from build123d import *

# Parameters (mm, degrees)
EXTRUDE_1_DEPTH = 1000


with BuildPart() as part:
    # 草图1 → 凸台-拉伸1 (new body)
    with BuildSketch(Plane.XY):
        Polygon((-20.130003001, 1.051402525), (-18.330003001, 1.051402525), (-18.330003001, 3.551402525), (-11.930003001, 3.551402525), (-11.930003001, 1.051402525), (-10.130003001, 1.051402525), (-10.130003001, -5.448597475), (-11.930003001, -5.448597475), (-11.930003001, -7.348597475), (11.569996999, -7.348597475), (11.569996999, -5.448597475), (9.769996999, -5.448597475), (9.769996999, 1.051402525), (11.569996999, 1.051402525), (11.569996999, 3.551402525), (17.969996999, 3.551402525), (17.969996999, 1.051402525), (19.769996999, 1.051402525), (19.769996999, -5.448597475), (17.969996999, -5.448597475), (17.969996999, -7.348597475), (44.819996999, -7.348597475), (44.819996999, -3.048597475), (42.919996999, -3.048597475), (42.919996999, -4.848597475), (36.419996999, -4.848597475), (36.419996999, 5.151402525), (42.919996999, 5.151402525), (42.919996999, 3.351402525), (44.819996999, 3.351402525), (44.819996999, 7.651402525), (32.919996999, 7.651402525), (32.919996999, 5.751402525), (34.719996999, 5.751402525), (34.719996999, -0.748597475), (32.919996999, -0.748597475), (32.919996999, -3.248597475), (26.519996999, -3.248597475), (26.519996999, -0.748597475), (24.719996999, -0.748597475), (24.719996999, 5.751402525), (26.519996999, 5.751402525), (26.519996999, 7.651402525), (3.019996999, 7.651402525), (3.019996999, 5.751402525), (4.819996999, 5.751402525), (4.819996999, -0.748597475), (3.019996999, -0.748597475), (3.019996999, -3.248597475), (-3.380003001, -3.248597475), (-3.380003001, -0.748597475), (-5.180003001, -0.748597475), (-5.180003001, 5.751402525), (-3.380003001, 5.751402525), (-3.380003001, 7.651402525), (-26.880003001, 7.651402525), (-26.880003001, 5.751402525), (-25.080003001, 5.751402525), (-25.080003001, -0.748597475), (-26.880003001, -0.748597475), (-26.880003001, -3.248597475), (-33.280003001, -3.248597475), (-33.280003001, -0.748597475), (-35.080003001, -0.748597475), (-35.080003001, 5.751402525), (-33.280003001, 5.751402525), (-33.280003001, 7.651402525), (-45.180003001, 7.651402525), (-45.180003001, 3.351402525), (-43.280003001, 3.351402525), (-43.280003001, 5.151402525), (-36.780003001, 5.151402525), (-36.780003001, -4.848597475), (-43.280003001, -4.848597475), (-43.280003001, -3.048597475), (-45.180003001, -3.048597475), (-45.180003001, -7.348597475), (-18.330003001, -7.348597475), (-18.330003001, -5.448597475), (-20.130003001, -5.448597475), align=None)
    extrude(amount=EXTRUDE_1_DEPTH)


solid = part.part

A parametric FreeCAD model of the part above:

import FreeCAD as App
import Part
import Sketcher

V = App.Vector
Q = App.Units.Quantity


def add_polygon(sketch, points):
    """Adds a closed chain of lines whose ends are joined by coincident constraints."""
    first, n = sketch.GeometryCount, len(points)
    for a, b in zip(points, points[1:] + points[:1]):
        sketch.addGeometry(Part.LineSegment(App.Vector(*a, 0), App.Vector(*b, 0)), False)
    for i in range(n):
        sketch.addConstraint(Sketcher.Constraint("Coincident", first + i, 2, first + (i + 1) % n, 1))

doc = App.newDocument("Part")
params = doc.addObject("Spreadsheet::Sheet", "Params")
for row, (alias, value) in enumerate([
    ("sketch1_height", "10 mm"),
    ("sketch1_width", "1.8 mm"),
    ("sketch1_width2", "6.4 mm"),
    ("sketch1_width3", "23.5 mm"),
    ("sketch1_width4", "1.9 mm"),
    ("pad1_length", "1000 mm"),
], start=1):
    params.set(f"A{row}", alias)
    params.set(f"B{row}", "=" + value)
    params.setAlias(f"B{row}", alias)

body = doc.addObject("PartDesign::Body", "Body")

# Sketch on XY plane
sketch1 = body.newObject("Sketcher::SketchObject", "Sketch")
sketch1.AttachmentSupport = (doc.getObject("XY_Plane"), [""])
sketch1.MapMode = "FlatFace"
add_polygon(sketch1, [(-20.1, 1.1), (-18.3, 1.1), (-18.3, 3.6), (-11.9, 3.6), (-11.9, 1.1), (-10.1, 1.1), (-10.1, -5.4), (-11.9, -5.4), (-11.9, -7.3), (11.6, -7.3), (11.6, -5.4), (9.8, -5.4), (9.8, 1.1), (11.6, 1.1), (11.6, 3.6), (18, 3.6), (18, 1.1), (19.8, 1.1), (19.8, -5.4), (18, -5.4), (18, -7.3), (44.8, -7.3), (44.8, -3), (42.9, -3), (42.9, -4.8), (36.4, -4.8), (36.4, 5.2), (42.9, 5.2), (42.9, 3.4), (44.8, 3.4), (44.8, 7.7), (32.9, 7.7), (32.9, 5.8), (34.7, 5.8), (34.7, -0.7), (32.9, -0.7), (32.9, -3.2), (26.5, -3.2), (26.5, -0.7), (24.7, -0.7), (24.7, 5.8), (26.5, 5.8), (26.5, 7.7), (3, 7.7), (3, 5.8), (4.8, 5.8), (4.8, -0.7), (3, -0.7), (3, -3.2), (-3.4, -3.2), (-3.4, -0.7), (-5.2, -0.7), (-5.2, 5.8), (-3.4, 5.8), (-3.4, 7.7), (-26.9, 7.7), (-26.9, 5.8), (-25.1, 5.8), (-25.1, -0.7), (-26.9, -0.7), (-26.9, -3.2), (-33.3, -3.2), (-33.3, -0.7), (-35.1, -0.7), (-35.1, 5.8), (-33.3, 5.8), (-33.3, 7.7), (-45.2, 7.7), (-45.2, 3.4), (-43.3, 3.4), (-43.3, 5.2), (-36.8, 5.2), (-36.8, -4.8), (-43.3, -4.8), (-43.3, -3), (-45.2, -3), (-45.2, -7.3), (-18.3, -7.3), (-18.3, -5.4), (-20.1, -5.4)])  # lines 0-79
sketch1.addConstraint([
    Sketcher.Constraint("Horizontal", 0),
    Sketcher.Constraint("Vertical", 1),
    Sketcher.Constraint("Horizontal", 2),
    Sketcher.Constraint("Vertical", 3),
    Sketcher.Constraint("Horizontal", 4),
    Sketcher.Constraint("Vertical", 5),
    Sketcher.Constraint("Horizontal", 6),
    Sketcher.Constraint("Vertical", 7),
    Sketcher.Constraint("Horizontal", 8),
    Sketcher.Constraint("Vertical", 9),
    Sketcher.Constraint("Horizontal", 10),
    Sketcher.Constraint("Vertical", 11),
    Sketcher.Constraint("Horizontal", 12),
    Sketcher.Constraint("Vertical", 13),
    Sketcher.Constraint("Horizontal", 14),
    Sketcher.Constraint("Vertical", 15),
    Sketcher.Constraint("Horizontal", 16),
    Sketcher.Constraint("Vertical", 17),
    Sketcher.Constraint("Horizontal", 18),
    Sketcher.Constraint("Vertical", 19),
    Sketcher.Constraint("Horizontal", 20),
    Sketcher.Constraint("Vertical", 21),
    Sketcher.Constraint("Horizontal", 22),
    Sketcher.Constraint("Vertical", 23),
    Sketcher.Constraint("Horizontal", 24),
    Sketcher.Constraint("Vertical", 25),
    Sketcher.Constraint("Horizontal", 26),
    Sketcher.Constraint("Vertical", 27),
    Sketcher.Constraint("Horizontal", 28),
    Sketcher.Constraint("Vertical", 29),
    Sketcher.Constraint("Horizontal", 30),
    Sketcher.Constraint("Vertical", 31),
    Sketcher.Constraint("Horizontal", 32),
    Sketcher.Constraint("Vertical", 33),
    Sketcher.Constraint("Horizontal", 34),
    Sketcher.Constraint("Vertical", 35),
    Sketcher.Constraint("Horizontal", 36),
    Sketcher.Constraint("Vertical", 37),
    Sketcher.Constraint("Horizontal", 38),
    Sketcher.Constraint("Vertical", 39),
    Sketcher.Constraint("Horizontal", 40),
    Sketcher.Constraint("Vertical", 41),
    Sketcher.Constraint("Horizontal", 42),
    Sketcher.Constraint("Vertical", 43),
    Sketcher.Constraint("Horizontal", 44),
    Sketcher.Constraint("Vertical", 45),
    Sketcher.Constraint("Horizontal", 46),
    Sketcher.Constraint("Vertical", 47),
    Sketcher.Constraint("Horizontal", 48),
    Sketcher.Constraint("Vertical", 49),
    Sketcher.Constraint("Horizontal", 50),
    Sketcher.Constraint("Vertical", 51),
    Sketcher.Constraint("Horizontal", 52),
    Sketcher.Constraint("Vertical", 53),
    Sketcher.Constraint("Horizontal", 54),
    Sketcher.Constraint("Vertical", 55),
    Sketcher.Constraint("Horizontal", 56),
    Sketcher.Constraint("Vertical", 57),
    Sketcher.Constraint("Horizontal", 58),
    Sketcher.Constraint("Vertical", 59),
    Sketcher.Constraint("Horizontal", 60),
    Sketcher.Constraint("Vertical", 61),
    Sketcher.Constraint("Horizontal", 62),
    Sketcher.Constraint("Vertical", 63),
    Sketcher.Constraint("Horizontal", 64),
    Sketcher.Constraint("Vertical", 65),
    Sketcher.Constraint("Horizontal", 66),
    Sketcher.Constraint("Vertical", 67),
    Sketcher.Constraint("Horizontal", 68),
    Sketcher.Constraint("Vertical", 69),
    Sketcher.Constraint("Horizontal", 70),
    Sketcher.Constraint("Vertical", 71),
    Sketcher.Constraint("Horizontal", 72),
    Sketcher.Constraint("Vertical", 73),
    Sketcher.Constraint("Horizontal", 74),
    Sketcher.Constraint("Vertical", 75),
    Sketcher.Constraint("Horizontal", 76),
    Sketcher.Constraint("Vertical", 77),
    Sketcher.Constraint("Horizontal", 78),
    Sketcher.Constraint("Vertical", 79),
    Sketcher.Constraint("Horizontal", 0, 2, 3, 2),
    Sketcher.Constraint("Horizontal", 6, 2, 9, 2),
    Sketcher.Constraint("Horizontal", 4, 2, 11, 2),
    Sketcher.Constraint("Horizontal", 2, 2, 13, 2),
    Sketcher.Constraint("Horizontal", 12, 2, 15, 2),
    Sketcher.Constraint("Horizontal", 10, 2, 17, 2),
    Sketcher.Constraint("Horizontal", 8, 2, 19, 2),
    Sketcher.Constraint("Horizontal", 34, 2, 37, 2),
    Sketcher.Constraint("Horizontal", 32, 2, 39, 2),
    Sketcher.Constraint("Horizontal", 30, 2, 41, 2),
    Sketcher.Constraint("Horizontal", 40, 2, 43, 2),
    Sketcher.Constraint("Horizontal", 38, 2, 45, 2),
    Sketcher.Constraint("Horizontal", 36, 2, 47, 2),
    Sketcher.Constraint("Horizontal", 46, 2, 49, 2),
    Sketcher.Constraint("Horizontal", 44, 2, 51, 2),
    Sketcher.Constraint("Horizontal", 42, 2, 53, 2),
    Sketcher.Constraint("Horizontal", 52, 2, 55, 2),
    Sketcher.Constraint("Horizontal", 50, 2, 57, 2),
    Sketcher.Constraint("Horizontal", 48, 2, 59, 2),
    Sketcher.Constraint("Horizontal", 58, 2, 61, 2),
    Sketcher.Constraint("Horizontal", 56, 2, 63, 2),
    Sketcher.Constraint("Horizontal", 54, 2, 65, 2),
    Sketcher.Constraint("Horizontal", 28, 2, 67, 2),
    Sketcher.Constraint("Horizontal", 26, 2, 69, 2),
    Sketcher.Constraint("Horizontal", 24, 2, 71, 2),
    Sketcher.Constraint("Horizontal", 22, 2, 73, 2),
    Sketcher.Constraint("Horizontal", 20, 2, 75, 2),
    Sketcher.Constraint("Horizontal", 18, 2, 77, 2),
    Sketcher.Constraint("Vertical", 3, 2, 6, 2),
    Sketcher.Constraint("Vertical", 9, 2, 12, 2),
    Sketcher.Constraint("Vertical", 15, 2, 18, 2),
    Sketcher.Constraint("Vertical", 23, 2, 26, 2),
    Sketcher.Constraint("Vertical", 21, 2, 28, 2),
    Sketcher.Constraint("Vertical", 31, 2, 34, 2),
    Sketcher.Constraint("Vertical", 37, 2, 40, 2),
    Sketcher.Constraint("Vertical", 43, 2, 46, 2),
    Sketcher.Constraint("Vertical", 49, 2, 52, 2),
    Sketcher.Constraint("Vertical", 55, 2, 58, 2),
    Sketcher.Constraint("Vertical", 61, 2, 64, 2),
    Sketcher.Constraint("Vertical", 69, 2, 72, 2),
    Sketcher.Constraint("Vertical", 67, 2, 74, 2),
    Sketcher.Constraint("Vertical", 1, 2, 76, 2),
    Sketcher.Constraint("Equal", 0, 4),
    Sketcher.Constraint("Equal", 6, 10),
    Sketcher.Constraint("Equal", 2, 14),
    Sketcher.Constraint("Equal", 12, 16),
    Sketcher.Constraint("Equal", 18, 32),
    Sketcher.Constraint("Equal", 14, 36),
    Sketcher.Constraint("Equal", 34, 38),
    Sketcher.Constraint("Equal", 8, 42),
    Sketcher.Constraint("Equal", 40, 44),
    Sketcher.Constraint("Equal", 36, 48),
    Sketcher.Constraint("Equal", 46, 50),
    Sketcher.Constraint("Equal", 42, 54),
    Sketcher.Constraint("Equal", 52, 56),
    Sketcher.Constraint("Equal", 48, 60),
    Sketcher.Constraint("Equal", 58, 62),
    Sketcher.Constraint("Equal", 30, 66),
    Sketcher.Constraint("Equal", 28, 68),
    Sketcher.Constraint("Equal", 26, 70),
    Sketcher.Constraint("Equal", 20, 76),
    Sketcher.Constraint("Equal", 72, 5),
    Sketcher.Constraint("Equal", 74, 7),
    Sketcher.Constraint("Equal", 78, 23),
    Sketcher.Constraint("Equal", 23, 27),
    Sketcher.Constraint("Equal", 21, 29),
    Sketcher.Constraint("Equal", 19, 31),
    Sketcher.Constraint("Equal", 17, 33),
    Sketcher.Constraint("Equal", 15, 35),
    Sketcher.Constraint("DistanceY", 25, 1, 25, 2, Q("10 mm")),
    Sketcher.Constraint("DistanceX", 0, 1, 0, 2, Q("1.8 mm")),
    Sketcher.Constraint("DistanceX", 2, 1, 2, 2, Q("6.4 mm")),
    Sketcher.Constraint("DistanceX", 8, 1, 8, 2, Q("23.5 mm")),
    Sketcher.Constraint("DistanceX", 22, 2, 22, 1, Q("1.9 mm")),
    Sketcher.Constraint("DistanceX", 24, 2, 24, 1, Q("6.5 mm")),
    Sketcher.Constraint("DistanceX", 30, 2, 30, 1, Q("11.9 mm")),
    Sketcher.Constraint("DistanceY", 1, 1, 1, 2, Q("2.5 mm")),
    Sketcher.Constraint("DistanceY", 21, 1, 21, 2, Q("4.3 mm")),
    Sketcher.Constraint("DistanceX", 0, 2, -1, 1, Q("18.330003 mm")),
    Sketcher.Constraint("DistanceY", -1, 1, 0, 2, Q("1.051403 mm")),
])
sketch1.setExpression("Constraints[229]", "Params.sketch1_height")
sketch1.setExpression("Constraints[230]", "Params.sketch1_width")
sketch1.setExpression("Constraints[231]", "Params.sketch1_width2")
sketch1.setExpression("Constraints[232]", "Params.sketch1_width3")
sketch1.setExpression("Constraints[233]", "Params.sketch1_width4")
pad1 = body.newObject("PartDesign::Pad", "Pad")
pad1.Profile = sketch1
pad1.setExpression("Length", "Params.pad1_length")

doc.recompute()
